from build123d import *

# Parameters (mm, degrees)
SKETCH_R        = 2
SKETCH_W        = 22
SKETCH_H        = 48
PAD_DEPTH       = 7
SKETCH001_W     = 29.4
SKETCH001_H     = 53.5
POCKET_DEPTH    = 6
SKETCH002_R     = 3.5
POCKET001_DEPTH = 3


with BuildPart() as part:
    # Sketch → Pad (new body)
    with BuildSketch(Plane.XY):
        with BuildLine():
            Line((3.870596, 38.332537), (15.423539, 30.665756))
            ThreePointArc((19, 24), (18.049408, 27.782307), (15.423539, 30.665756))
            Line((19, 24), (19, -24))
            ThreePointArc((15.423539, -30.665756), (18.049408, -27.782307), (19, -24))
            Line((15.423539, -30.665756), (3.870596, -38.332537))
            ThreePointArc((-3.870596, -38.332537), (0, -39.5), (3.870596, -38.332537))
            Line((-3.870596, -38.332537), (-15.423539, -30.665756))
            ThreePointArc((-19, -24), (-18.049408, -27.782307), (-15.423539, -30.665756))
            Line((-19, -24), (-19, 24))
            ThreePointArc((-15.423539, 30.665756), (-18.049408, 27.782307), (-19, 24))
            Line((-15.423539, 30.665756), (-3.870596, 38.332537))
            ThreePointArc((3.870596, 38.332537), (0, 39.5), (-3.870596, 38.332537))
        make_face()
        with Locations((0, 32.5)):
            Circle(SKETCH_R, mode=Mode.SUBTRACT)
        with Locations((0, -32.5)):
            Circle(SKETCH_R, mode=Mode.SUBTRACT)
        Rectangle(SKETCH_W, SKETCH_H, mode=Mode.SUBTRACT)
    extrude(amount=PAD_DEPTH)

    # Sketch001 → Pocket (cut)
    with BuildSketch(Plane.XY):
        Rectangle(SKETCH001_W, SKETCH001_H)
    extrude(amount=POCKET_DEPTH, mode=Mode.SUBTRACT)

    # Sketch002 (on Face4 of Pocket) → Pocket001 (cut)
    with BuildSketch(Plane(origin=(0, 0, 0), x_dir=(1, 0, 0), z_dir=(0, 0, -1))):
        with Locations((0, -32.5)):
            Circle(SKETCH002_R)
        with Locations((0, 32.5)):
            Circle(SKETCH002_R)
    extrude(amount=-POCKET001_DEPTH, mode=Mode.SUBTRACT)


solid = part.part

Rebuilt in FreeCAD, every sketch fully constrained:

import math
import FreeCAD as App
import Part
import Sketcher
Q = App.Units.Quantity

doc = App.newDocument("Part")
body = doc.addObject("PartDesign::Body", "Body")

# Sketch on XY plane
sketch1 = body.newObject("Sketcher::SketchObject", "Sketch")
sketch1.AttachmentSupport = (doc.getObject("XY_Plane"), [""])
sketch1.MapMode = "FlatFace"
sketch1.addGeometry(Part.LineSegment(App.Vector(15.4, 30.7, 0), App.Vector(3.9, 38.3, 0)), False)
sketch1.addGeometry(Part.ArcOfCircle(Part.Circle(App.Vector(0, 32.5, 0), App.Vector(0, 0, 1), 7), math.radians(56), math.radians(124)), False)
sketch1.addGeometry(Part.LineSegment(App.Vector(-3.9, 38.3, 0), App.Vector(-15.4, 30.7, 0)), False)
sketch1.addGeometry(Part.ArcOfCircle(Part.Circle(App.Vector(-11, 24, 0), App.Vector(0, 0, 1), 8), math.radians(124), math.radians(180)), False)
sketch1.addGeometry(Part.LineSegment(App.Vector(-19, 24, 0), App.Vector(-19, -24, 0)), False)
sketch1.addGeometry(Part.ArcOfCircle(Part.Circle(App.Vector(-11, -24, 0), App.Vector(0, 0, 1), 8), math.radians(-180), math.radians(-124)), False)
sketch1.addGeometry(Part.LineSegment(App.Vector(-15.4, -30.7, 0), App.Vector(-3.9, -38.3, 0)), False)
sketch1.addGeometry(Part.ArcOfCircle(Part.Circle(App.Vector(0, -32.5, 0), App.Vector(0, 0, 1), 7), math.radians(-124), math.radians(-56)), False)
sketch1.addGeometry(Part.LineSegment(App.Vector(3.9, -38.3, 0), App.Vector(15.4, -30.7, 0)), False)
sketch1.addGeometry(Part.ArcOfCircle(Part.Circle(App.Vector(11, -24, 0), App.Vector(0, 0, 1), 8), math.radians(-56), math.radians(0)), False)
sketch1.addGeometry(Part.LineSegment(App.Vector(19, -24, 0), App.Vector(19, 24, 0)), False)
sketch1.addGeometry(Part.ArcOfCircle(Part.Circle(App.Vector(11, 24, 0), App.Vector(0, 0, 1), 8), math.radians(0), math.radians(56)), False)
sketch1.addGeometry(Part.Circle(App.Vector(0, -32.5, 0), App.Vector(0, 0, 1), 2), False)
sketch1.addGeometry(Part.LineSegment(App.Vector(-11, -24, 0), App.Vector(-11, 24, 0)), False)
sketch1.addGeometry(Part.LineSegment(App.Vector(-11, 24, 0), App.Vector(11, 24, 0)), False)
sketch1.addGeometry(Part.LineSegment(App.Vector(11, 24, 0), App.Vector(11, -24, 0)), False)
sketch1.addGeometry(Part.LineSegment(App.Vector(11, -24, 0), App.Vector(-11, -24, 0)), False)
sketch1.addGeometry(Part.Circle(App.Vector(0, 32.5, 0), App.Vector(0, 0, 1), 2), False)
sketch1.addConstraint(Sketcher.Constraint("Tangent", 0, 2, 1, 1))
sketch1.addConstraint(Sketcher.Constraint("Tangent", 1, 2, 2, 1))
sketch1.addConstraint(Sketcher.Constraint("Tangent", 2, 2, 3, 1))
sketch1.addConstraint(Sketcher.Constraint("Tangent", 3, 2, 4, 1))
sketch1.addConstraint(Sketcher.Constraint("Tangent", 4, 2, 5, 1))
sketch1.addConstraint(Sketcher.Constraint("Tangent", 5, 2, 6, 1))
sketch1.addConstraint(Sketcher.Constraint("Tangent", 6, 2, 7, 1))
sketch1.addConstraint(Sketcher.Constraint("Tangent", 7, 2, 8, 1))
sketch1.addConstraint(Sketcher.Constraint("Tangent", 8, 2, 9, 1))
sketch1.addConstraint(Sketcher.Constraint("Tangent", 9, 2, 10, 1))
sketch1.addConstraint(Sketcher.Constraint("Tangent", 10, 2, 11, 1))
sketch1.addConstraint(Sketcher.Constraint("Tangent", 11, 2, 0, 1))
sketch1.addConstraint(Sketcher.Constraint("Coincident", 13, 2, 14, 1))
sketch1.addConstraint(Sketcher.Constraint("Coincident", 14, 2, 15, 1))
sketch1.addConstraint(Sketcher.Constraint("Coincident", 15, 2, 16, 1))
sketch1.addConstraint(Sketcher.Constraint("Coincident", 16, 2, 13, 1))
sketch1.addConstraint(Sketcher.Constraint("Vertical", 4))
sketch1.addConstraint(Sketcher.Constraint("Vertical", 10))
sketch1.addConstraint(Sketcher.Constraint("Vertical", 13))
sketch1.addConstraint(Sketcher.Constraint("Horizontal", 14))
sketch1.addConstraint(Sketcher.Constraint("Vertical", 15))
sketch1.addConstraint(Sketcher.Constraint("Horizontal", 16))
sketch1.addConstraint(Sketcher.Constraint("Coincident", 12, 3, 7, 3))
sketch1.addConstraint(Sketcher.Constraint("Coincident", 17, 3, 1, 3))
sketch1.addConstraint(Sketcher.Constraint("Coincident", 13, 2, 3, 3))
sketch1.addConstraint(Sketcher.Constraint("Coincident", 14, 2, 11, 3))
sketch1.addConstraint(Sketcher.Constraint("Coincident", 15, 2, 9, 3))
sketch1.addConstraint(Sketcher.Constraint("Coincident", 16, 2, 5, 3))
sketch1.addConstraint(Sketcher.Constraint("Equal", 1, 7))
sketch1.addConstraint(Sketcher.Constraint("Equal", 5, 9))
sketch1.addConstraint(Sketcher.Constraint("Equal", 12, 17))
sketch1.addConstraint(Sketcher.Constraint("Symmetric", 1, 3, 7, 3, -1, 1))
sketch1.addConstraint(Sketcher.Constraint("Symmetric", 3, 3, 9, 3, -1, 1))
sketch1.addConstraint(Sketcher.Constraint("PointOnObject", 1, 3, -2))
sketch1.addConstraint(Sketcher.Constraint("Diameter", 12, Q("4 mm")))
sketch1.addConstraint(Sketcher.Constraint("Radius", 1, Q("7.000001 mm")))
sketch1.addConstraint(Sketcher.Constraint("Radius", 3, Q("8 mm")))
sketch1.addConstraint(Sketcher.Constraint("DistanceX", 14, 1, 14, 2, Q("22 mm")))
sketch1.addConstraint(Sketcher.Constraint("DistanceY", 4, 2, 4, 1, Q("48 mm")))
sketch1.addConstraint(Sketcher.Constraint("DistanceY", 7, 3, 1, 3, Q("64.999999 mm")))
pad1 = body.newObject("PartDesign::Pad", "Pad")
pad1.Profile = sketch1
pad1.Length = 7

# Sketch on XY plane
sketch2 = body.newObject("Sketcher::SketchObject", "Sketch001")
sketch2.AttachmentSupport = (doc.getObject("XY_Plane"), [""])
sketch2.MapMode = "FlatFace"
sketch2.addGeometry(Part.LineSegment(App.Vector(-15, 27, 0), App.Vector(-15, -27, 0)), False)
sketch2.addGeometry(Part.LineSegment(App.Vector(-15, -27, 0), App.Vector(15, -27, 0)), False)
sketch2.addGeometry(Part.LineSegment(App.Vector(15, -27, 0), App.Vector(15, 27, 0)), False)
sketch2.addGeometry(Part.LineSegment(App.Vector(15, 27, 0), App.Vector(-15, 27, 0)), False)
sketch2.addConstraint(Sketcher.Constraint("Coincident", 0, 2, 1, 1))
sketch2.addConstraint(Sketcher.Constraint("Coincident", 1, 2, 2, 1))
sketch2.addConstraint(Sketcher.Constraint("Coincident", 2, 2, 3, 1))
sketch2.addConstraint(Sketcher.Constraint("Coincident", 3, 2, 0, 1))
sketch2.addConstraint(Sketcher.Constraint("Vertical", 0))
sketch2.addConstraint(Sketcher.Constraint("Horizontal", 1))
sketch2.addConstraint(Sketcher.Constraint("Vertical", 2))
sketch2.addConstraint(Sketcher.Constraint("Horizontal", 3))
sketch2.addConstraint(Sketcher.Constraint("Symmetric", 0, 2, 2, 2, -1, 1))
sketch2.addConstraint(Sketcher.Constraint("DistanceX", 1, 1, 1, 2, Q("29.4 mm")))
sketch2.addConstraint(Sketcher.Constraint("DistanceY", 0, 2, 0, 1, Q("53.5 mm")))
pocket1 = body.newObject("PartDesign::Pocket", "Pocket")
pocket1.Profile = sketch2
pocket1.Length = 6
pocket1.Reversed = True

# Sketch on XY plane
sketch3 = body.newObject("Sketcher::SketchObject", "Sketch002")
sketch3.AttachmentSupport = (doc.getObject("XY_Plane"), [""])
sketch3.MapMode = "FlatFace"
sketch3.addGeometry(Part.Circle(App.Vector(0, 32.5, 0), App.Vector(0, 0, 1), 3.5), False)
sketch3.addGeometry(Part.Circle(App.Vector(0, -32.5, 0), App.Vector(0, 0, 1), 3.5), False)
sketch3.addConstraint(Sketcher.Constraint("Equal", 0, 1))
sketch3.addConstraint(Sketcher.Constraint("Symmetric", 0, 3, 1, 3, -1, 1))
sketch3.addConstraint(Sketcher.Constraint("PointOnObject", 0, 3, -2))
sketch3.addConstraint(Sketcher.Constraint("Diameter", 0, Q("7 mm")))
sketch3.addConstraint(Sketcher.Constraint("DistanceY", 1, 3, 0, 3, Q("65 mm")))
pocket2 = body.newObject("PartDesign::Pocket", "Pocket001")
pocket2.Profile = sketch3
pocket2.Length = 3
pocket2.Reversed = True

doc.recompute()
